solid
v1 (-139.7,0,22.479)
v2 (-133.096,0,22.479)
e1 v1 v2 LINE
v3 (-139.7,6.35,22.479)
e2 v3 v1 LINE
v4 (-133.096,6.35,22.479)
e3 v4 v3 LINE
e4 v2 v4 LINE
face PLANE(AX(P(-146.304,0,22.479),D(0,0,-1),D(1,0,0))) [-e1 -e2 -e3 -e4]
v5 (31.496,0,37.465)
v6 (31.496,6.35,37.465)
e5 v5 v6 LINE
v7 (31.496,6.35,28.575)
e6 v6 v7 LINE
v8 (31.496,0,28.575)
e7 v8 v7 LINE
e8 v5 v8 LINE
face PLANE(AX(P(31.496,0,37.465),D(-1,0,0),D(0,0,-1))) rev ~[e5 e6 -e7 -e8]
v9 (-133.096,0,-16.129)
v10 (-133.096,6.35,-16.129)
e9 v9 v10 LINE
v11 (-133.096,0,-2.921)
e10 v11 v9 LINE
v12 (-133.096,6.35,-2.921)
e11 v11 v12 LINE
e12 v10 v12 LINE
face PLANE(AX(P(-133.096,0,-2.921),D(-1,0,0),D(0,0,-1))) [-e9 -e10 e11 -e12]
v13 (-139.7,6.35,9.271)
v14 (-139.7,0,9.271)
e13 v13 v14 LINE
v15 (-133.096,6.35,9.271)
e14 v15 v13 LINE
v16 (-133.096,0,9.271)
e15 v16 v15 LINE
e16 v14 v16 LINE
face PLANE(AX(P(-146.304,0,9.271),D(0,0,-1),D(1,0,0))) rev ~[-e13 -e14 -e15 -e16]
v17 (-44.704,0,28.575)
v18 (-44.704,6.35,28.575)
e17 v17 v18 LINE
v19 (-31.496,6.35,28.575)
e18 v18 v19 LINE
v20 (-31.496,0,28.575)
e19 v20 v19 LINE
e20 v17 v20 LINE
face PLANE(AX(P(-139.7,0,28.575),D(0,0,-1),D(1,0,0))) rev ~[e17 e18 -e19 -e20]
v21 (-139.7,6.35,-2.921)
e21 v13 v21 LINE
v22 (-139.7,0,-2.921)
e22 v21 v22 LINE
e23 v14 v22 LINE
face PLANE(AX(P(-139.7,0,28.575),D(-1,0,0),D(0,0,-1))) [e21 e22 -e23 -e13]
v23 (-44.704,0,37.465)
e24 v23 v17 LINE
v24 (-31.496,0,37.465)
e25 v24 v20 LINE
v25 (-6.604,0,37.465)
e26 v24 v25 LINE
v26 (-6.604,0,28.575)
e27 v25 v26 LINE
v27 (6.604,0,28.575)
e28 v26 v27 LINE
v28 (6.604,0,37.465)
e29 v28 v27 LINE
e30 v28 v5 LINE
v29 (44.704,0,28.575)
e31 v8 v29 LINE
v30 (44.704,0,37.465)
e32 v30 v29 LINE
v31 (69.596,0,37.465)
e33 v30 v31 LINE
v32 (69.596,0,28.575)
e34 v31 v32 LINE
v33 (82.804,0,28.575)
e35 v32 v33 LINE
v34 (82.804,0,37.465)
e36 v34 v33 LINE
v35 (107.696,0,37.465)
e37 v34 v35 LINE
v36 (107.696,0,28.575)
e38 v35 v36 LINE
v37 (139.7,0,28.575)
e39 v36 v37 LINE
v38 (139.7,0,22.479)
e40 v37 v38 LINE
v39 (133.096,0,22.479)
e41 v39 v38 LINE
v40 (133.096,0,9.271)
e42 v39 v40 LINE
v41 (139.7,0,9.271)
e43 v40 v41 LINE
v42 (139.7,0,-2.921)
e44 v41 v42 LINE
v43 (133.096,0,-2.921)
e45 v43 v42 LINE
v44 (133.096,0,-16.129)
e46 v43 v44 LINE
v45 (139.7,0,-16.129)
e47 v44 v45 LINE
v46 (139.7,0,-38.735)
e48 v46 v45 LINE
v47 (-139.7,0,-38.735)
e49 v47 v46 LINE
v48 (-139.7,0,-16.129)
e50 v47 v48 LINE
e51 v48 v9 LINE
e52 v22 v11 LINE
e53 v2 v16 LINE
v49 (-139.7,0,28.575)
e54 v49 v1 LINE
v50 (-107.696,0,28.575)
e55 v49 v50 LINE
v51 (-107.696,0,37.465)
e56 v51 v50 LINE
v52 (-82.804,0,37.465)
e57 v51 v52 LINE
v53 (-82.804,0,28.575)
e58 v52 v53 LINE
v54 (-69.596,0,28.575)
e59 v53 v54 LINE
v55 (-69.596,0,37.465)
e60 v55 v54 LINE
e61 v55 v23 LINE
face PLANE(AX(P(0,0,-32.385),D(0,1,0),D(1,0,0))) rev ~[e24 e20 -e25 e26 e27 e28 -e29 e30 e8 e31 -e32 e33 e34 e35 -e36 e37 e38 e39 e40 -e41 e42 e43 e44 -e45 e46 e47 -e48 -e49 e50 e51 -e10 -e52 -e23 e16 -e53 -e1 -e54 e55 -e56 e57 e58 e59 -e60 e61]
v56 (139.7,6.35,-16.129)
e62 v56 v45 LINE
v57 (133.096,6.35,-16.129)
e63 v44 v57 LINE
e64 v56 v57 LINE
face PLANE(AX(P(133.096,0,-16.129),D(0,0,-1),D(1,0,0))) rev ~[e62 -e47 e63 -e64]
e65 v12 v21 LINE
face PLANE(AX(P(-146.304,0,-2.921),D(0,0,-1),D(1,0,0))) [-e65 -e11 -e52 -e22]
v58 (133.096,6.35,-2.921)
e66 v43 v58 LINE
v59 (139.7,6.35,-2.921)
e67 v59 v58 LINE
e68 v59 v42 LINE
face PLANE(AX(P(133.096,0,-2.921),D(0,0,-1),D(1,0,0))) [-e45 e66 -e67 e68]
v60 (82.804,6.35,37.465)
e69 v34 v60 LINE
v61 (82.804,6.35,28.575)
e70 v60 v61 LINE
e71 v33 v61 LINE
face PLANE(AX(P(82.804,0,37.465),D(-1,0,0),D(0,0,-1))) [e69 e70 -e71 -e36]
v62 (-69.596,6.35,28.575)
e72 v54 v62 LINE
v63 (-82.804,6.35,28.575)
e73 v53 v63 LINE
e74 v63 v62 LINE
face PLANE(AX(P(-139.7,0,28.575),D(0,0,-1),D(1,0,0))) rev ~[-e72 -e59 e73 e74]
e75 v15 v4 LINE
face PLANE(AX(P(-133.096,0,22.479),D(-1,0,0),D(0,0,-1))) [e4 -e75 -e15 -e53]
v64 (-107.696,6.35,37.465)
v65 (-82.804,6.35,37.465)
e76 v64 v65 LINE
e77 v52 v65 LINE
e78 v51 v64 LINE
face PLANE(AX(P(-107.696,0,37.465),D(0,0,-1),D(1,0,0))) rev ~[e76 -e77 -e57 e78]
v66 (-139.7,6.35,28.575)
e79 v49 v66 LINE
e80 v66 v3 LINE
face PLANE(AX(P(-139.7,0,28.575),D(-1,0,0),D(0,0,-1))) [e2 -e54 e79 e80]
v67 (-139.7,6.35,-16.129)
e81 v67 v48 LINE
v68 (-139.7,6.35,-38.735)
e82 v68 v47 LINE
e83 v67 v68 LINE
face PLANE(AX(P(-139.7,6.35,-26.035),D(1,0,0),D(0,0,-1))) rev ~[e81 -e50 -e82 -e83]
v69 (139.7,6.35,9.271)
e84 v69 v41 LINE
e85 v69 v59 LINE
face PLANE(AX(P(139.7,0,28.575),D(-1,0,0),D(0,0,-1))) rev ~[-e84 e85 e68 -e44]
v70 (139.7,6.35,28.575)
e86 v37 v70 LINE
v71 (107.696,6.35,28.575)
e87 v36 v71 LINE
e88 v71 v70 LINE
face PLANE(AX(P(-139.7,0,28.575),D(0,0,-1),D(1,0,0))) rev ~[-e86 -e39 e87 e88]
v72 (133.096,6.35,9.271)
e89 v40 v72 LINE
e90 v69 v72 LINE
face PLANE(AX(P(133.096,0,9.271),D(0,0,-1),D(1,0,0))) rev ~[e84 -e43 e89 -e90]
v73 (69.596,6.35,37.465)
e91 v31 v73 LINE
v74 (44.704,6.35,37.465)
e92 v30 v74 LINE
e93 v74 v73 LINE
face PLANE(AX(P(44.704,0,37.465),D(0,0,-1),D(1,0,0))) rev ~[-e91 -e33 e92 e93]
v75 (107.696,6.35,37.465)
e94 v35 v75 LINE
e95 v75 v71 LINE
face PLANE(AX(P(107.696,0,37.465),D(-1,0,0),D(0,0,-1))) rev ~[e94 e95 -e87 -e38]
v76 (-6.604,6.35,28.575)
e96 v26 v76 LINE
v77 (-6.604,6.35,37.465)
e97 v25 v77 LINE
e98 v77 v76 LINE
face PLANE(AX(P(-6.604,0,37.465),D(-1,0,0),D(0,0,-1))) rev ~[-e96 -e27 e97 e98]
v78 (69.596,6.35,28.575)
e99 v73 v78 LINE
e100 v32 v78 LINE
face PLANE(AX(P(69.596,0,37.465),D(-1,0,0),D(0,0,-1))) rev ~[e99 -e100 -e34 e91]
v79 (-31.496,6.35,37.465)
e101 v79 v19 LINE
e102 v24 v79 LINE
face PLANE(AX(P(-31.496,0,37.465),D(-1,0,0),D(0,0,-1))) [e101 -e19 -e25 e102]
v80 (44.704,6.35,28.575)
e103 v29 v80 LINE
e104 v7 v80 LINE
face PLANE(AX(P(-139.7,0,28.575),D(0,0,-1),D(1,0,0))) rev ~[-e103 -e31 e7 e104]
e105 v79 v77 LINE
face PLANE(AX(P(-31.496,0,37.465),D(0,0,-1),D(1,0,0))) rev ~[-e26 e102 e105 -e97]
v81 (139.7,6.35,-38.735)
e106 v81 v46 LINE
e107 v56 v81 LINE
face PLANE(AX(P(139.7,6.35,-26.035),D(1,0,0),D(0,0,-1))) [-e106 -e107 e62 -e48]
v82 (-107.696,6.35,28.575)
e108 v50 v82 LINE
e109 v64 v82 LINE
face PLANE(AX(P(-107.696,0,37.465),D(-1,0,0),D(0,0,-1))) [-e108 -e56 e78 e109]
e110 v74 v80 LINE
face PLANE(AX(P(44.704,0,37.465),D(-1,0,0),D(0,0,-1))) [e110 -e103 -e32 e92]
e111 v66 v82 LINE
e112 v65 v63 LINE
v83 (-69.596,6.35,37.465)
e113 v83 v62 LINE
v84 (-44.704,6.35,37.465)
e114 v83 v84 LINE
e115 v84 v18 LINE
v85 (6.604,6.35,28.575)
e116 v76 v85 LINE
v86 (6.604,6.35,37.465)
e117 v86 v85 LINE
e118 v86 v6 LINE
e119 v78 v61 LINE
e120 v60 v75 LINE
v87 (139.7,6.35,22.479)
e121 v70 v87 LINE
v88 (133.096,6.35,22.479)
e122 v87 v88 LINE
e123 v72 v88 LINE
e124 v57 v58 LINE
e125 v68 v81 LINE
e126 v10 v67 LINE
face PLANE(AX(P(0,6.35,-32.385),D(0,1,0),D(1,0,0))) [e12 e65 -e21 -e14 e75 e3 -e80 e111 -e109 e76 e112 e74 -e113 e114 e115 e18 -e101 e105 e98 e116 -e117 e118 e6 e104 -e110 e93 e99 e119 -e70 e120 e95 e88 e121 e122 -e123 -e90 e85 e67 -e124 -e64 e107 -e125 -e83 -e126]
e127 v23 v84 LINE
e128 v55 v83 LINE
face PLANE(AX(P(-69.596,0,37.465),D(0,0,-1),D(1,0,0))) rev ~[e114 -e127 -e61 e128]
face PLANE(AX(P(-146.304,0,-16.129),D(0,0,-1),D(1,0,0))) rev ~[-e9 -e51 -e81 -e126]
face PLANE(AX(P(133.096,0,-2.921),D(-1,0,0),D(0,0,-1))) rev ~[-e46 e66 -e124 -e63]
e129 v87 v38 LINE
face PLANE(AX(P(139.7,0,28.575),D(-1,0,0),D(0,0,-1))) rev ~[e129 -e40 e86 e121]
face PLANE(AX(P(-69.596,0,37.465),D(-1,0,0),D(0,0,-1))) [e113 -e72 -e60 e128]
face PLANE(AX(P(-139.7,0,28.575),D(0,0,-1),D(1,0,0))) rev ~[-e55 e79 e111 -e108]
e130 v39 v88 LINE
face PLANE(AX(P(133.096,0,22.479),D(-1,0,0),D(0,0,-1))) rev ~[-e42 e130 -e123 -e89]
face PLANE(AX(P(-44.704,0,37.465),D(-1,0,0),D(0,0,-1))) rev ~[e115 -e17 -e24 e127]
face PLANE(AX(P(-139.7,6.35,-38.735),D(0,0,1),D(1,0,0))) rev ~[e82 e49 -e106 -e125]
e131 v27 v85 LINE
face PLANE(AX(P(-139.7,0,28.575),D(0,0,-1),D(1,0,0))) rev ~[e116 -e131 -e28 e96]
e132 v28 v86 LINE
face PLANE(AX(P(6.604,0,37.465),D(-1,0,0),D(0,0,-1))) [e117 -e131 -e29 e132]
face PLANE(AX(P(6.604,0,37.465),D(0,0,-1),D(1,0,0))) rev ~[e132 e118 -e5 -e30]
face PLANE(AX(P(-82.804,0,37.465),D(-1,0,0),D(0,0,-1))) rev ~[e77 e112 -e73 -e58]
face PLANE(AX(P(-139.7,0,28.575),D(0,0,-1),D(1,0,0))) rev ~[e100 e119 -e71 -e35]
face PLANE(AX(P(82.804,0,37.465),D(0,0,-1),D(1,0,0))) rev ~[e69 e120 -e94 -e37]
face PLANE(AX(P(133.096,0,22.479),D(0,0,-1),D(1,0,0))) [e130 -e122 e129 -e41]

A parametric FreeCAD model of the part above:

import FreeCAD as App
import Part
import Sketcher

V = App.Vector
Q = App.Units.Quantity


def add_polygon(sketch, points):
    """Adds a closed chain of lines whose ends are joined by coincident constraints."""
    first, n = sketch.GeometryCount, len(points)
    for a, b in zip(points, points[1:] + points[:1]):
        sketch.addGeometry(Part.LineSegment(App.Vector(*a, 0), App.Vector(*b, 0)), False)
    for i in range(n):
        sketch.addConstraint(Sketcher.Constraint("Coincident", first + i, 2, first + (i + 1) % n, 1))

doc = App.newDocument("Part")
body = doc.addObject("PartDesign::Body", "Body")

sketch1 = body.newObject("Sketcher::SketchObject", "Sketch")
sketch1.AttachmentSupport = (doc.getObject("XZ_Plane"), [""])
sketch1.MapMode = "FlatFace"
add_polygon(sketch1, [(-140, -29), (-140, 29), (140, 29), (140, -29)])
sketch1.addConstraint([
    Sketcher.Constraint("Vertical", 0),
    Sketcher.Constraint("Horizontal", 1),
    Sketcher.Constraint("Vertical", 2),
    Sketcher.Constraint("Horizontal", 3),
    Sketcher.Constraint("Symmetric", 0, 2, 2, 2, -1, 1),
    Sketcher.Constraint("DistanceX", 1, 1, 1, 2, Q("11 in")),
    Sketcher.Constraint("DistanceY", 0, 1, 0, 2, Q("2.25 in")),
])
pad1 = body.newObject("PartDesign::Pad", "Pad")
pad1.Profile = sketch1
pad1.Length = Q("0.25 in")
pad1.Reversed = True

sketch2 = body.newObject("Sketcher::SketchObject", "Sketch001")
sketch2.AttachmentSupport = (doc.getObject("XZ_Plane"), [""])
sketch2.MapMode = "FlatFace"
add_polygon(sketch2, [(-108, 29), (-108, 37), (-83, 37), (-83, 29)])
add_polygon(sketch2, [(-70, 29), (-70, 37), (-45, 37), (-45, 29)])
add_polygon(sketch2, [(-31, 29), (-31, 37), (-7, 37), (-7, 29)])
add_polygon(sketch2, [(7, 29), (7, 37), (31, 37), (31, 29)])
add_polygon(sketch2, [(45, 29), (45, 37), (70, 37), (70, 29)])
add_polygon(sketch2, [(83, 29), (83, 37), (108, 37), (108, 29)])
sketch2.addConstraint([
    Sketcher.Constraint("Vertical", 0),
    Sketcher.Constraint("Horizontal", 1),
    Sketcher.Constraint("Vertical", 2),
    Sketcher.Constraint("Horizontal", 3),
    Sketcher.Constraint("Vertical", 4),
    Sketcher.Constraint("Horizontal", 5),
    Sketcher.Constraint("Vertical", 6),
    Sketcher.Constraint("Horizontal", 7),
    Sketcher.Constraint("Vertical", 8),
    Sketcher.Constraint("Horizontal", 9),
    Sketcher.Constraint("Vertical", 10),
    Sketcher.Constraint("Horizontal", 11),
    Sketcher.Constraint("Vertical", 12),
    Sketcher.Constraint("Horizontal", 13),
    Sketcher.Constraint("Vertical", 14),
    Sketcher.Constraint("Horizontal", 15),
    Sketcher.Constraint("Vertical", 16),
    Sketcher.Constraint("Horizontal", 17),
    Sketcher.Constraint("Vertical", 18),
    Sketcher.Constraint("Horizontal", 19),
    Sketcher.Constraint("Vertical", 20),
    Sketcher.Constraint("Horizontal", 21),
    Sketcher.Constraint("Vertical", 22),
    Sketcher.Constraint("Horizontal", 23),
    Sketcher.Constraint("Symmetric", 9, 2, 12, 2, -2),
    Sketcher.Constraint("Symmetric", 11, 2, 14, 2, -2),
    Sketcher.Constraint("Symmetric", 5, 2, 16, 2, -2),
    Sketcher.Constraint("Symmetric", 7, 2, 18, 2, -2),
    Sketcher.Constraint("Symmetric", 1, 2, 20, 2, -2),
    Sketcher.Constraint("Symmetric", 3, 2, 22, 2, -2),
    Sketcher.Constraint("Horizontal", 1, 2, 4, 2),
    Sketcher.Constraint("Horizontal", 3, 2, 6, 2),
    Sketcher.Constraint("Horizontal", 5, 2, 8, 2),
    Sketcher.Constraint("Horizontal", 7, 2, 10, 2),
    Sketcher.Constraint("Equal", 3, 5),
    Sketcher.Constraint("Equal", 7, 9),
    Sketcher.Constraint("DistanceX", 1, 1, 1, 2, Q("0.98 in")),
    Sketcher.Constraint("DistanceY", 0, 1, 0, 2, Q("0.35 in")),
    Sketcher.Constraint("DistanceX", 0, 2, 4, 2, Q("1.5 in")),
    Sketcher.Constraint("DistanceX", 4, 2, 8, 2, Q("1.5 in")),
    Sketcher.Constraint("DistanceX", 8, 2, 12, 2, Q("1.5 in")),
    Sketcher.Constraint("DistanceY", -1, 1, 0, 2, Q("1.475 in")),
])
pad2 = body.newObject("PartDesign::Pad", "Pad001")
pad2.Profile = sketch2
pad2.Length = Q("0.25 in")
pad2.Reversed = True

sketch3 = body.newObject("Sketcher::SketchObject", "Sketch002")
sketch3.AttachmentSupport = (doc.getObject("XZ_Plane"), [""])
sketch3.MapMode = "FlatFace"
add_polygon(sketch3, [(-146, -16), (-146, -3), (-133, -3), (-133, -16)])
add_polygon(sketch3, [(-146, 9), (-146, 22), (-133, 22), (-133, 9)])
add_polygon(sketch3, [(133, 9), (133, 22), (146, 22), (146, 9)])
add_polygon(sketch3, [(133, -16), (133, -3), (146, -3), (146, -16)])
sketch3.addConstraint([
    Sketcher.Constraint("Vertical", 0),
    Sketcher.Constraint("Horizontal", 1),
    Sketcher.Constraint("Vertical", 2),
    Sketcher.Constraint("Horizontal", 3),
    Sketcher.Constraint("Vertical", 4),
    Sketcher.Constraint("Horizontal", 5),
    Sketcher.Constraint("Vertical", 6),
    Sketcher.Constraint("Horizontal", 7),
    Sketcher.Constraint("Vertical", 8),
    Sketcher.Constraint("Horizontal", 9),
    Sketcher.Constraint("Vertical", 10),
    Sketcher.Constraint("Horizontal", 11),
    Sketcher.Constraint("Vertical", 12),
    Sketcher.Constraint("Horizontal", 13),
    Sketcher.Constraint("Vertical", 14),
    Sketcher.Constraint("Horizontal", 15),
    Sketcher.Constraint("Symmetric", 5, 2, 8, 2, -2),
    Sketcher.Constraint("Symmetric", 7, 2, 10, 2, -2),
    Sketcher.Constraint("Symmetric", 1, 2, 12, 2, -2),
    Sketcher.Constraint("Symmetric", 3, 2, 14, 2, -2),
    Sketcher.Constraint("Vertical", 3, 2, 4, 2),
    Sketcher.Constraint("Vertical", 2, 2, 5, 2),
    Sketcher.Constraint("Equal", 15, 0),
    Sketcher.Constraint("Equal", 2, 4),
    Sketcher.Constraint("DistanceY", 0, 2, 4, 2, Q("1 in")),
    Sketcher.Constraint("DistanceX", 4, 2, 8, 2, Q("11 in")),
    Sketcher.Constraint("DistanceX", 1, 1, 1, 2, Q("0.52 in")),
    Sketcher.Constraint("DistanceY", 0, 2, -1, 1, Q("0.115 in")),
])
pocket1 = body.newObject("PartDesign::Pocket", "Pocket")
pocket1.Profile = sketch3
pocket1.Type = "ThroughAll"

sketch4 = body.newObject("Sketcher::SketchObject", "Sketch003")
sketch4.AttachmentSupport = (doc.getObject("XZ_Plane"), [""])
sketch4.MapMode = "FlatFace"
sketch4.AttachmentOffset = App.Placement(V(0, 0, -0.25 * 25.4), App.Rotation())
add_polygon(sketch4, [(-139.7, -28.6), (-139.7, -26), (171.8, -26), (171.8, -28.6)])
sketch4.addConstraint([
    Sketcher.Constraint("Vertical", 0),
    Sketcher.Constraint("Horizontal", 1),
    Sketcher.Constraint("Vertical", 2),
    Sketcher.Constraint("Horizontal", 3),
    Sketcher.Constraint("DistanceY", 0, 1, 0, 2, Q("0.1 in")),
    Sketcher.Constraint("DistanceX", 0, 2, -1, 1, Q("5.5 in")),
    Sketcher.Constraint("DistanceY", 0, 2, -1, 1, Q("1.025 in")),
    Sketcher.Constraint("DistanceX", 1, 1, 1, 2, 311.517576),
])
pocket2 = body.newObject("PartDesign::Pocket", "Pocket001")
pocket2.Profile = sketch4
pocket2.Type = "ThroughAll"
pocket2.Reversed = True

sketch5 = body.newObject("Sketcher::SketchObject", "Sketch004")
sketch5.AttachmentSupport = (doc.getObject("XZ_Plane"), [""])
sketch5.MapMode = "FlatFace"
sketch5.AttachmentOffset = App.Placement(V(0, 0, -0.25 * 25.4), App.Rotation())
add_polygon(sketch5, [(-140, -39), (-140, -26), (140, -26), (140, -39)])
sketch5.addConstraint([
    Sketcher.Constraint("Vertical", 0),
    Sketcher.Constraint("Horizontal", 1),
    Sketcher.Constraint("Vertical", 2),
    Sketcher.Constraint("Horizontal", 3),
    Sketcher.Constraint("DistanceX", 1, 1, 1, 2, Q("11 in")),
    Sketcher.Constraint("DistanceY", 0, 1, 0, 2, Q("0.5 in")),
    Sketcher.Constraint("DistanceX", 0, 2, -1, 1, Q("5.5 in")),
    Sketcher.Constraint("DistanceY", 0, 2, -1, 1, Q("1.025 in")),
])
pad3 = body.newObject("PartDesign::Pad", "Pad002")
pad3.Profile = sketch5
pad3.Length = Q("0.25 in")

doc.recompute()
